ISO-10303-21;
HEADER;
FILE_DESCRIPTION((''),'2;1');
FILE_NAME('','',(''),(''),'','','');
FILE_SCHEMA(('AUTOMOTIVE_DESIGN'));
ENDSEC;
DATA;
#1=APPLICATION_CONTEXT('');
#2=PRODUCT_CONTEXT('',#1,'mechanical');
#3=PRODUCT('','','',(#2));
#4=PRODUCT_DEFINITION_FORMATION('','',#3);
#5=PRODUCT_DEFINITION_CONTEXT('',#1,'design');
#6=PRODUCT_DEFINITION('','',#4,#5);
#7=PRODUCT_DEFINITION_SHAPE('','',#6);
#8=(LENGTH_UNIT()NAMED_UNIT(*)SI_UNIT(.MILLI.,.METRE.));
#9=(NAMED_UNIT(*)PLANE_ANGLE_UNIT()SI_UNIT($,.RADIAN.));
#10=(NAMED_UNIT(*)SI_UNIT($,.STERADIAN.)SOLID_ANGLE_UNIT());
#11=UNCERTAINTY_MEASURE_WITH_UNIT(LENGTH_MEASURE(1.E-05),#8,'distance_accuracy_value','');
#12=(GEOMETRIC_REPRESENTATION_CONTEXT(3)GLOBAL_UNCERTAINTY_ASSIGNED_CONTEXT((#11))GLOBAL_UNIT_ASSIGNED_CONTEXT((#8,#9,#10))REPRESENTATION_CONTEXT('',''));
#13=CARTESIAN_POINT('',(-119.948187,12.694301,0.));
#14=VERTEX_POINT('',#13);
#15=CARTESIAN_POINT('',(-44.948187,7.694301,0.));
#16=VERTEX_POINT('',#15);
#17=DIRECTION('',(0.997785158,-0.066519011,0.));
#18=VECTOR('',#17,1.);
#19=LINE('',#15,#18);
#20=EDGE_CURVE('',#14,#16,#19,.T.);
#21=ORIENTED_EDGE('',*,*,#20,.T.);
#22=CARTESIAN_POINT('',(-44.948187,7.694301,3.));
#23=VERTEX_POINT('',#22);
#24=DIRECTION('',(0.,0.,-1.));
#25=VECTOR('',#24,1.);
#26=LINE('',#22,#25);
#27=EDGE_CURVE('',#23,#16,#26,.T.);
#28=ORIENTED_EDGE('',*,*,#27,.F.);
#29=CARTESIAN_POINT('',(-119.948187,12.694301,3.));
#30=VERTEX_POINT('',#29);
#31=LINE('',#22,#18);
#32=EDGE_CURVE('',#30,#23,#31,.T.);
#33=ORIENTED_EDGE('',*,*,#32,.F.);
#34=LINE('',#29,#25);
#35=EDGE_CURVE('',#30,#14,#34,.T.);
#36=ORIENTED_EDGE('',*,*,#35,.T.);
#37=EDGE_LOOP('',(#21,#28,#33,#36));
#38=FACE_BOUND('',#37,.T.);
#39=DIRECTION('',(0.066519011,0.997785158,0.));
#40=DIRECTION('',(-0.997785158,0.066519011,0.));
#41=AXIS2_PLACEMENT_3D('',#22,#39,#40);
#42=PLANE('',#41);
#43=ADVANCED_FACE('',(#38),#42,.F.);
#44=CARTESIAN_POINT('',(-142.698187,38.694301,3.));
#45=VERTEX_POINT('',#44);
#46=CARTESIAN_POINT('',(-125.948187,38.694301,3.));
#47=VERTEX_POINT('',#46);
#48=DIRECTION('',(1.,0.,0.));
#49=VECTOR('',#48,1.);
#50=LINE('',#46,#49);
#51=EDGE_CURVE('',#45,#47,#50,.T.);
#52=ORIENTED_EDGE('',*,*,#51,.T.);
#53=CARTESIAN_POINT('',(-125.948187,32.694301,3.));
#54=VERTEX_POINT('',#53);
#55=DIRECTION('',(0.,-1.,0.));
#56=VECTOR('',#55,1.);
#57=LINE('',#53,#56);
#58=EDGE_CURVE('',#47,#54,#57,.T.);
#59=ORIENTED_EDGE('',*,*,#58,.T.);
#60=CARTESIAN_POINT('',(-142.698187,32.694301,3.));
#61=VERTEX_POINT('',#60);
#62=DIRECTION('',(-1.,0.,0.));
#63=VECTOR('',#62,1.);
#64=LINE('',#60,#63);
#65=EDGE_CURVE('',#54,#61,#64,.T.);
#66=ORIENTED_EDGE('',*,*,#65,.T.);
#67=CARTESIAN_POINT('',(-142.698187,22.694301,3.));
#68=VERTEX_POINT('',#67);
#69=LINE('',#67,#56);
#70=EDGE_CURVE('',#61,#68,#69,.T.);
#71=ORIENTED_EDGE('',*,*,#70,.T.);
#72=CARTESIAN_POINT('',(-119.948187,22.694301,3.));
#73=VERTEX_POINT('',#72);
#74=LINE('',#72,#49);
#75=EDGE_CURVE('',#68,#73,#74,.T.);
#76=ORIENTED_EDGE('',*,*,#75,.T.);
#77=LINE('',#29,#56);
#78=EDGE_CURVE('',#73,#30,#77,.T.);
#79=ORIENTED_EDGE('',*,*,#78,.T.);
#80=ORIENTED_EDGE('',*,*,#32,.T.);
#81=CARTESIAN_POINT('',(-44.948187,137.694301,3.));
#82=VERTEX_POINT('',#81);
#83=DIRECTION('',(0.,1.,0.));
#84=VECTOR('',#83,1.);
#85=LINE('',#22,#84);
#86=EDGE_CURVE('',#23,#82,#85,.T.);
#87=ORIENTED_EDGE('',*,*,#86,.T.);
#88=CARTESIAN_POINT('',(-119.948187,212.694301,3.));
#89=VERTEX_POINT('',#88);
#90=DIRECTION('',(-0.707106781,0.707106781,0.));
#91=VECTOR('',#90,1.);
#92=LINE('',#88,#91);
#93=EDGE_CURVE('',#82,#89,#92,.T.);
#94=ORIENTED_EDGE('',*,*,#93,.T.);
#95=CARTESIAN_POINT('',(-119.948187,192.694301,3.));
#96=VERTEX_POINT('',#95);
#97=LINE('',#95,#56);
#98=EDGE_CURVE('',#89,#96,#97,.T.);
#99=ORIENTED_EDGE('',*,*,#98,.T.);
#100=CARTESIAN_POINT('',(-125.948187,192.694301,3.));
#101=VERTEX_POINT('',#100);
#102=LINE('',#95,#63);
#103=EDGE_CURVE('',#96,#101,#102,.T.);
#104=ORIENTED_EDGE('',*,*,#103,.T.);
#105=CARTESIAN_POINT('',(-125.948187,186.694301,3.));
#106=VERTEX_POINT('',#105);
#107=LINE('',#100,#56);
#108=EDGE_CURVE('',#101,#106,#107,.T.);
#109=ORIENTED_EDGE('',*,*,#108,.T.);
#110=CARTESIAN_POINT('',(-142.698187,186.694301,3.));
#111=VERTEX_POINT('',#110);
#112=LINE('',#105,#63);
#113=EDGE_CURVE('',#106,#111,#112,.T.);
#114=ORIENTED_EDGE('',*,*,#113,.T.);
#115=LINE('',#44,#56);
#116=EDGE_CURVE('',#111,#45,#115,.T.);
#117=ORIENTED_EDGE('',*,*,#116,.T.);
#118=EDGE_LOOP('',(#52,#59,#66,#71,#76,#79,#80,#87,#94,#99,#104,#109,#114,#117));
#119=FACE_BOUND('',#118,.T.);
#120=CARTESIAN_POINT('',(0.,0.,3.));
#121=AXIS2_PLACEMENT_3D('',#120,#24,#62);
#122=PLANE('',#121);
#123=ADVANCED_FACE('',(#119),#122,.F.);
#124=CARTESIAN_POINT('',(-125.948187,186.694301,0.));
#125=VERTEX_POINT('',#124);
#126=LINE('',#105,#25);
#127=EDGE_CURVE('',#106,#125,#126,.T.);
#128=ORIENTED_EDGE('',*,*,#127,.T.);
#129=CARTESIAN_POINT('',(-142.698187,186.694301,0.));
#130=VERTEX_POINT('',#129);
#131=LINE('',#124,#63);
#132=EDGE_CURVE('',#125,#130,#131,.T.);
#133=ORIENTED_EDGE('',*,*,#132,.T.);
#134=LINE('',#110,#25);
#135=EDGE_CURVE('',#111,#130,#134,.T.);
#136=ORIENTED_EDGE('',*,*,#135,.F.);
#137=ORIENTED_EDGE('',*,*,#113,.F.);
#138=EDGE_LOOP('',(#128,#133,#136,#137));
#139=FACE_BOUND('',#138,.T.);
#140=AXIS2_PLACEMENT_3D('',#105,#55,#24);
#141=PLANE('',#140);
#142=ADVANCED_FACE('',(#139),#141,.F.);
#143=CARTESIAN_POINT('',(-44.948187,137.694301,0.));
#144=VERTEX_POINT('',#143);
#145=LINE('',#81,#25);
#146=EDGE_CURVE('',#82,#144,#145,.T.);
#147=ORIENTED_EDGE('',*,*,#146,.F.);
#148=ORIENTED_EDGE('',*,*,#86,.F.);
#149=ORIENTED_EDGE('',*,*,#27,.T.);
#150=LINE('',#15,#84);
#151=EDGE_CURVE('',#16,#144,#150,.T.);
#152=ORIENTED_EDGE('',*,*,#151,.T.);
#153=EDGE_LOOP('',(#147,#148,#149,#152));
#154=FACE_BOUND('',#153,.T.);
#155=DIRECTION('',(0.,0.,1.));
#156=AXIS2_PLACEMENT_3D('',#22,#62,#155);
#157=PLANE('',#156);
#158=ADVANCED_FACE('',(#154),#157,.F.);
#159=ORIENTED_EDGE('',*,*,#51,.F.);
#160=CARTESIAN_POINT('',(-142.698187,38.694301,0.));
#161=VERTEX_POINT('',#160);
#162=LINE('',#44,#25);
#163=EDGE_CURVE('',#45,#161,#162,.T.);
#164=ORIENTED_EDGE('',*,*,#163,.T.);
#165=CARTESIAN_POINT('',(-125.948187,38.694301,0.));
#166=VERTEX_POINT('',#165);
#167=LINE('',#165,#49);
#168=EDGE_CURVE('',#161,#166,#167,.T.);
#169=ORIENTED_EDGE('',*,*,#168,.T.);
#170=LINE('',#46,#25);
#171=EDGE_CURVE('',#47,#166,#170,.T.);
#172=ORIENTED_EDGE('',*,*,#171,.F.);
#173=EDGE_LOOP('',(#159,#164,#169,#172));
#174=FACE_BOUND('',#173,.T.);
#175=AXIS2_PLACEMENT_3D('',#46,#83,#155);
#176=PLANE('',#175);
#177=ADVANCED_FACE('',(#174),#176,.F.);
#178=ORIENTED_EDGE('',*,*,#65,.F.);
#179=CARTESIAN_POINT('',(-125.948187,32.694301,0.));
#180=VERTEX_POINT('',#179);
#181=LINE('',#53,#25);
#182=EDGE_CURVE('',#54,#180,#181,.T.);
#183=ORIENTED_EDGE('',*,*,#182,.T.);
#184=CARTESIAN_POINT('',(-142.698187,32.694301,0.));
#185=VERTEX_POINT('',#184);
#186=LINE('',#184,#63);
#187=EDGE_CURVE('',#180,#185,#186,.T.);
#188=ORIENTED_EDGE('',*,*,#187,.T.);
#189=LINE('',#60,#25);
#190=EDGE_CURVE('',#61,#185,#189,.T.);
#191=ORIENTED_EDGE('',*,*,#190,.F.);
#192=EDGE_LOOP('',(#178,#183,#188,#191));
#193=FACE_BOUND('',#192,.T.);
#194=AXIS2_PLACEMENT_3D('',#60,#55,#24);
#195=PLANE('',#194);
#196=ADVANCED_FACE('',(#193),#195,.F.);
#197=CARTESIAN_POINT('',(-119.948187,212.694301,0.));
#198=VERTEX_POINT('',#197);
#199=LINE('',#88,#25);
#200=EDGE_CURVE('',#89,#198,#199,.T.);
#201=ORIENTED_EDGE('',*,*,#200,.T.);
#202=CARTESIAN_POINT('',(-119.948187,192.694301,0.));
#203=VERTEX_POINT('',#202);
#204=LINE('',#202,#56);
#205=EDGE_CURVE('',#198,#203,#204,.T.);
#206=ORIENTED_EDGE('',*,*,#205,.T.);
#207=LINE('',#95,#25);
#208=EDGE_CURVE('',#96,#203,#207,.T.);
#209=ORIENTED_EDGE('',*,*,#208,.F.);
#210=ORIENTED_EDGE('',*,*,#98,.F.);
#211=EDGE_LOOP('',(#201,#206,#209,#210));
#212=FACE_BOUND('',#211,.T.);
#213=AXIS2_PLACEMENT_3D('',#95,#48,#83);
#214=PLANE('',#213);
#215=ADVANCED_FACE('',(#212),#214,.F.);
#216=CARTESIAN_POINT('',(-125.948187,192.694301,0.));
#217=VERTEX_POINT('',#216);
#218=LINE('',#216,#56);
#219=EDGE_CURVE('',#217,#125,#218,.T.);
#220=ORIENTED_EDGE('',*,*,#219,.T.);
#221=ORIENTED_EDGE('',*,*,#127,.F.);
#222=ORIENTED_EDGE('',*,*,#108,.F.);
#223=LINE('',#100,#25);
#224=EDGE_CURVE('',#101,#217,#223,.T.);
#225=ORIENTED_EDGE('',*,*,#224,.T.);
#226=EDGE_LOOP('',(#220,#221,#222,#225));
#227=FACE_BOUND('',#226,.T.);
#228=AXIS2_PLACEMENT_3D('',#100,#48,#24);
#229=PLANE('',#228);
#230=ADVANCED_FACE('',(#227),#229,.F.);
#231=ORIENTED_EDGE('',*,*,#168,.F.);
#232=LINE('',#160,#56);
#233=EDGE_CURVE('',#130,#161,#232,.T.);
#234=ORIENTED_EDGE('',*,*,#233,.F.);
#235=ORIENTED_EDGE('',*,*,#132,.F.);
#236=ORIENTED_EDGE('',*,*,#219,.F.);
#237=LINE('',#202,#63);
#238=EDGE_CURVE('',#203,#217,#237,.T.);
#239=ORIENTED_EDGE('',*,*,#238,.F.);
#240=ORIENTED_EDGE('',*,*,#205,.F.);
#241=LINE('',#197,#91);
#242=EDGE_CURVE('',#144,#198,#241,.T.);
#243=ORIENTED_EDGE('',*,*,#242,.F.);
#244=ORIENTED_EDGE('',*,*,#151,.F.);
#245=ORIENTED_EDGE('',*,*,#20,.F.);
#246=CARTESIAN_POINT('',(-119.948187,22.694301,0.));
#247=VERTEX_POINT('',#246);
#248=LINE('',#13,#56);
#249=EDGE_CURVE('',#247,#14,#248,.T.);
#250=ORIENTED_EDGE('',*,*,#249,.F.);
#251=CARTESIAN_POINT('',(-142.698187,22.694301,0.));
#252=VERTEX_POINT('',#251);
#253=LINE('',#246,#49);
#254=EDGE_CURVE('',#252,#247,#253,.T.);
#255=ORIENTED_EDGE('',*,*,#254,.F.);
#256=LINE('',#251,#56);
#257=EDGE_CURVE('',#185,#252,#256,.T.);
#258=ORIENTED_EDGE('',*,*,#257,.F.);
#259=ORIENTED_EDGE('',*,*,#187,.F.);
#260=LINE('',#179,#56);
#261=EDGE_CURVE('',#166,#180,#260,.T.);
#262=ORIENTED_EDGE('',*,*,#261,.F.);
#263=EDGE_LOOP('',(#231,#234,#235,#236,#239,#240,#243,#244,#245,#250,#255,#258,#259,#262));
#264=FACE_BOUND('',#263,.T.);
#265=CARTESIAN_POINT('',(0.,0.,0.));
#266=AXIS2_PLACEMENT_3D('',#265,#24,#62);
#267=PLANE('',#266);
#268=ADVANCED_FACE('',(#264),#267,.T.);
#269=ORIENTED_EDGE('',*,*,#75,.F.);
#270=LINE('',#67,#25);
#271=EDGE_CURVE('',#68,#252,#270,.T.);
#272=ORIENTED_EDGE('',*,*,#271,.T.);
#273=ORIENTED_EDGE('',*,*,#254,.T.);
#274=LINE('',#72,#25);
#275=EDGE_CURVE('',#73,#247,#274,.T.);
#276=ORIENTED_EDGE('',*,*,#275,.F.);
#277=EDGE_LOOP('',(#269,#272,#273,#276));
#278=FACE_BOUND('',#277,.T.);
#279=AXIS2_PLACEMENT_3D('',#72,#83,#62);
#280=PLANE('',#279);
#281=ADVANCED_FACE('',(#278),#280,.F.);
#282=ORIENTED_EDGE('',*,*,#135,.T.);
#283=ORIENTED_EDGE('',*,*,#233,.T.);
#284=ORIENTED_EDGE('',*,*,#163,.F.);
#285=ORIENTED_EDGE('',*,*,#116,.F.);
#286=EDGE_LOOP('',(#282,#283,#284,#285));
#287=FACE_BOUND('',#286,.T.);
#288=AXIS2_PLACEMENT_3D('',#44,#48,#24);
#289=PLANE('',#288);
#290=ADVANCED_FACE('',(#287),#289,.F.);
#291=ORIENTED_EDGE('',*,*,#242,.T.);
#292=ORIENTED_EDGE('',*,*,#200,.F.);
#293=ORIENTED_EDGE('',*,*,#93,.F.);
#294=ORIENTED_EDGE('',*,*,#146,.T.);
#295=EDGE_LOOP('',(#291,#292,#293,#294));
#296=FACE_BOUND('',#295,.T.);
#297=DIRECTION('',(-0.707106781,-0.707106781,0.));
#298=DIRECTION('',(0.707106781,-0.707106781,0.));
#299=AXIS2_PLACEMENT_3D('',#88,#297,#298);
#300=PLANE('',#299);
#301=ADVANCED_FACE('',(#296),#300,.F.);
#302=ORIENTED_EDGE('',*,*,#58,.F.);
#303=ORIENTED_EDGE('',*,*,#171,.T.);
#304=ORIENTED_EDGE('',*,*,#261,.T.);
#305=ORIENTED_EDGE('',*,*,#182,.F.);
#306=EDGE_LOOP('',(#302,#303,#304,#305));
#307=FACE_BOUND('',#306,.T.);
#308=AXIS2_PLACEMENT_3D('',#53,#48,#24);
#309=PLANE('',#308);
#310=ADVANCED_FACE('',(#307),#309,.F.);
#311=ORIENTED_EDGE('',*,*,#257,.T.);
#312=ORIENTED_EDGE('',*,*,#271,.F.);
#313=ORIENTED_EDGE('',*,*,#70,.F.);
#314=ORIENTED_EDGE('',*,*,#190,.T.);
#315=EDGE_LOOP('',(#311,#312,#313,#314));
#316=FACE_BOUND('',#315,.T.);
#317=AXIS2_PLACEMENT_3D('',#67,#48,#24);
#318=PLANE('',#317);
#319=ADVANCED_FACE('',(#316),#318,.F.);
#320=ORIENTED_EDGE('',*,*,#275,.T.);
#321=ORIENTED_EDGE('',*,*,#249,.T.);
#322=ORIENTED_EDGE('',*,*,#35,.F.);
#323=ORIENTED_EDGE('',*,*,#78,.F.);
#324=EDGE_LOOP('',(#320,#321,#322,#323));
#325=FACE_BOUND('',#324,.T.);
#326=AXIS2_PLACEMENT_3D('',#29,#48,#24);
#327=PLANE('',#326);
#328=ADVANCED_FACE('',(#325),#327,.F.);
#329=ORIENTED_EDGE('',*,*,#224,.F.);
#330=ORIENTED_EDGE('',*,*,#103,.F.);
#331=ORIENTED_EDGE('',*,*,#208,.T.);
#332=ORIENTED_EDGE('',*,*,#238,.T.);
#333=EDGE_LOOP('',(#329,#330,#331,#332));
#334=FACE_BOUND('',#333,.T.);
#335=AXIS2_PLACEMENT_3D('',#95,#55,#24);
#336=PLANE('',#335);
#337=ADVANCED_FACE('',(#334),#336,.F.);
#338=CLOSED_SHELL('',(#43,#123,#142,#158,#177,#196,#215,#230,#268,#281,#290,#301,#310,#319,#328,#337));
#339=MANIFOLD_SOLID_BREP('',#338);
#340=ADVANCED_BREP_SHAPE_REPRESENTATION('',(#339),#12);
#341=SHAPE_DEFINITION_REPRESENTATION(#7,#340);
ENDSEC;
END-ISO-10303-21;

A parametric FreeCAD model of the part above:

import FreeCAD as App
import Part
import Sketcher

V = App.Vector
Q = App.Units.Quantity


def add_polygon(sketch, points):
    """Adds a closed chain of lines whose ends are joined by coincident constraints."""
    first, n = sketch.GeometryCount, len(points)
    for a, b in zip(points, points[1:] + points[:1]):
        sketch.addGeometry(Part.LineSegment(App.Vector(*a, 0), App.Vector(*b, 0)), False)
    for i in range(n):
        sketch.addConstraint(Sketcher.Constraint("Coincident", first + i, 2, first + (i + 1) % n, 1))

doc = App.newDocument("Part")
params = doc.addObject("Spreadsheet::Sheet", "Params")
for row, (alias, value) in enumerate([
    ("sketch1_width", "6 mm"),
    ("sketch1_height", "10 mm"),
    ("sketch1_height2", "130 mm"),
    ("sketch1_height3", "20 mm"),
    ("sketch1_height4", "148 mm"),
    ("pad1_length", "3 mm"),
], start=1):
    params.set(f"A{row}", alias)
    params.set(f"B{row}", "=" + value)
    params.setAlias(f"B{row}", alias)

body = doc.addObject("PartDesign::Body", "Body")

sketch1 = body.newObject("Sketcher::SketchObject", "Sketch")
sketch1.AttachmentSupport = (doc.getObject("XY_Plane"), [""])
sketch1.MapMode = "FlatFace"
add_polygon(sketch1, [(-120, 23), (-120, 13), (-45, 8), (-45, 138), (-120, 213), (-120, 193), (-126, 193), (-126, 187), (-143, 187), (-143, 39), (-126, 39), (-126, 33), (-143, 33), (-143, 23)])
sketch1.addConstraint(Sketcher.Constraint("Vertical", 0))
sketch1.addConstraint(Sketcher.Constraint("Vertical", 2))
sketch1.addConstraint(Sketcher.Constraint("Vertical", 4))
sketch1.addConstraint(Sketcher.Constraint("Horizontal", 5))
sketch1.addConstraint(Sketcher.Constraint("Vertical", 6))
sketch1.addConstraint(Sketcher.Constraint("Horizontal", 7))
sketch1.addConstraint(Sketcher.Constraint("Vertical", 8))
sketch1.addConstraint(Sketcher.Constraint("Horizontal", 9))
sketch1.addConstraint(Sketcher.Constraint("Vertical", 10))
sketch1.addConstraint(Sketcher.Constraint("Horizontal", 11))
sketch1.addConstraint(Sketcher.Constraint("Vertical", 12))
sketch1.addConstraint(Sketcher.Constraint("Horizontal", 13))
sketch1.addConstraint(Sketcher.Constraint("Vertical", 0, 2, 3, 2))
sketch1.addConstraint(Sketcher.Constraint("Vertical", 6, 2, 9, 2))
sketch1.addConstraint(Sketcher.Constraint("Vertical", 8, 2, 11, 2))
sketch1.addConstraint(Sketcher.Constraint("Equal", 5, 6))
sketch1.addConstraint(Sketcher.Constraint("Equal", 6, 10))
sketch1.addConstraint(Sketcher.Constraint("Equal", 0, 12))
sketch1.addConstraint(Sketcher.Constraint("DistanceX", 5, 2, 5, 1, 6.0))
sketch1.addConstraint(Sketcher.Constraint("DistanceY", 0, 2, 0, 1, 10.0))
sketch1.addConstraint(Sketcher.Constraint("DistanceY", 2, 1, 2, 2, 130.0))
sketch1.addConstraint(Sketcher.Constraint("DistanceY", 4, 2, 4, 1, 20.0))
sketch1.addConstraint(Sketcher.Constraint("DistanceY", 8, 2, 8, 1, 148.0))
sketch1.addConstraint(Sketcher.Constraint("Angle", 3, Q("135 deg")))
sketch1.addConstraint(Sketcher.Constraint("DistanceX", 0, 2, 1, 2, 75.0))
sketch1.addConstraint(Sketcher.Constraint("DistanceX", 7, 2, 7, 1, 16.75))
sketch1.addConstraint(Sketcher.Constraint("DistanceY", -1, 1, 0, 2, 12.694301))
sketch1.addConstraint(Sketcher.Constraint("DistanceX", 0, 2, -1, 1, 119.948187))
sketch1.setExpression("Constraints[32]", "Params.sketch1_width")
sketch1.setExpression("Constraints[33]", "Params.sketch1_height")
sketch1.setExpression("Constraints[34]", "Params.sketch1_height2")
sketch1.setExpression("Constraints[35]", "Params.sketch1_height3")
sketch1.setExpression("Constraints[36]", "Params.sketch1_height4")
pad1 = body.newObject("PartDesign::Pad", "Pad")
pad1.Profile = sketch1
pad1.setExpression("Length", "Params.pad1_length")

doc.recompute()
